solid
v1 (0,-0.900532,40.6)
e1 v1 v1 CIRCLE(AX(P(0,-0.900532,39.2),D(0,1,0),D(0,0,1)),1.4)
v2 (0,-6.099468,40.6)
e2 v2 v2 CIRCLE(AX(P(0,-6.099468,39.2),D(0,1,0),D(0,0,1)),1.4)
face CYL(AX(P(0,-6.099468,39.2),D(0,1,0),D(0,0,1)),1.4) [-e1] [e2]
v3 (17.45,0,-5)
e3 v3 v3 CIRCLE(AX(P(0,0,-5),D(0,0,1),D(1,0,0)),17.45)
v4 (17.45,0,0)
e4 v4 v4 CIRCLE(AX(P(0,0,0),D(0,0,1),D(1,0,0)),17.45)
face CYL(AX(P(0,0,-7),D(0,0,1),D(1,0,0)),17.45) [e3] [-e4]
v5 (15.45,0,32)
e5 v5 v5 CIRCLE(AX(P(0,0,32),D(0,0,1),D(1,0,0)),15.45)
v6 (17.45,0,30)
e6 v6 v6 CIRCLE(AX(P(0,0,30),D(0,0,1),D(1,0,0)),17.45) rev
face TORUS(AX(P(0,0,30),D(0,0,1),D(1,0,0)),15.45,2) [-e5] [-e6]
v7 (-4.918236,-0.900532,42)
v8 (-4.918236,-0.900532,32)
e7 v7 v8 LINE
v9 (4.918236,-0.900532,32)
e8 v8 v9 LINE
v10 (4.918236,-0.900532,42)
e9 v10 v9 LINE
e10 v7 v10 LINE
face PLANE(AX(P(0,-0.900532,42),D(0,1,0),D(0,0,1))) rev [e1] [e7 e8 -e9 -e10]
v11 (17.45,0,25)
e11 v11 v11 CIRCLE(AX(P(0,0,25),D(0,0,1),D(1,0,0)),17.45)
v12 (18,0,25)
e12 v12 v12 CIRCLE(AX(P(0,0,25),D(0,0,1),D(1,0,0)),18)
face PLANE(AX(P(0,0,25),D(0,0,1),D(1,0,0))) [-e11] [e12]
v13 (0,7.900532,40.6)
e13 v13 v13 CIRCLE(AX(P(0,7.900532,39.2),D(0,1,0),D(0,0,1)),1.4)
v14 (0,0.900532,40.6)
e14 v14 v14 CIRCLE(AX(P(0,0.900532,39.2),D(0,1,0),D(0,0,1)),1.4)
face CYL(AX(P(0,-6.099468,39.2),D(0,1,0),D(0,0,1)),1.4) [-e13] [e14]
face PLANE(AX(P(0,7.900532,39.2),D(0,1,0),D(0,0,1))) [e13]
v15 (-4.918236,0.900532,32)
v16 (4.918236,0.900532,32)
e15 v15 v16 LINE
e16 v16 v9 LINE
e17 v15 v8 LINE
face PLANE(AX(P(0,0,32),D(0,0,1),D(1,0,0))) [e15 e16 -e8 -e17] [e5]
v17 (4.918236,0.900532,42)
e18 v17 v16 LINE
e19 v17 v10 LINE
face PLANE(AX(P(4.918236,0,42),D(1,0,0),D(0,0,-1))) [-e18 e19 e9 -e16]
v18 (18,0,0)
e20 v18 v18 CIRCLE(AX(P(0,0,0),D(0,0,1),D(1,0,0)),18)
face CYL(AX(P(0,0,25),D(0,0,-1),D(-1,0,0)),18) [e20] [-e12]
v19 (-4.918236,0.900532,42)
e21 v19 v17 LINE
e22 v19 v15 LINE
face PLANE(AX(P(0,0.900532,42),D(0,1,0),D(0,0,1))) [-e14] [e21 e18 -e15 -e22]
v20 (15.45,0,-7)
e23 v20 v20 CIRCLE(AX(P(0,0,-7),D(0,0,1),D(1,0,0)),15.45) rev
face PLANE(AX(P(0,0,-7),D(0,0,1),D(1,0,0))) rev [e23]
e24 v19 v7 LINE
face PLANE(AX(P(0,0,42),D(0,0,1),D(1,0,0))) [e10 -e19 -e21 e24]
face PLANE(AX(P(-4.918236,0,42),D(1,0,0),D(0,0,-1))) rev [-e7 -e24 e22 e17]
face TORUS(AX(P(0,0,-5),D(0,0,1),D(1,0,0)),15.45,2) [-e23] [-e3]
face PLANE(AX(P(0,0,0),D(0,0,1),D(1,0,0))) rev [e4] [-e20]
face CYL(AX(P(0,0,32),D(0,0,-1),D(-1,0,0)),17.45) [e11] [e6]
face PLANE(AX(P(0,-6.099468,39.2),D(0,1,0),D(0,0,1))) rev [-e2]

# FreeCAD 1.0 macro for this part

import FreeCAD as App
import Part
import Sketcher
from FreeCAD import Vector
Q = App.Units.Quantity


def edges_at(feature, points):
    """Names of the edges that pass closest to the given points."""
    edges = feature.Shape.Edges
    near = lambda p: min(range(len(edges)), key=lambda i: edges[i].distToShape(Part.Vertex(*p))[0])
    return sorted({f"Edge{near(p) + 1}" for p in points})

doc = App.newDocument("Part")
body = doc.addObject("PartDesign::Body", "Body")

# Sketch on XY plane
sketch1 = body.newObject("Sketcher::SketchObject", "Sketch")
sketch1.AttachmentSupport = (doc.getObject("XY_Plane"), [""])
sketch1.MapMode = "FlatFace"
sketch1.addGeometry(Part.Circle(Vector(0, 0, 0), Vector(0, 0, 1), 18), False)
sketch1.addConstraint(Sketcher.Constraint("Coincident", 0, 3, -1, 1))
sketch1.addConstraint(Sketcher.Constraint("Diameter", 0, Q("36 mm")))
pad1 = body.newObject("PartDesign::Pad", "Pad")
pad1.Profile = sketch1
pad1.Length = 25

# Sketch on XY plane
sketch2 = body.newObject("Sketcher::SketchObject", "Sketch001")
sketch2.AttachmentSupport = (doc.getObject("XY_Plane"), [""])
sketch2.MapMode = "FlatFace"
sketch2.AttachmentOffset = App.Placement(Vector(0, 0, 25), App.Rotation())
sketch2.addGeometry(Part.Circle(Vector(0, 0, 0), Vector(0, 0, 1), 17), False)
sketch2.addConstraint(Sketcher.Constraint("Coincident", 0, 3, -1, 1))
sketch2.addConstraint(Sketcher.Constraint("Diameter", 0, Q("34.9 mm")))
pad2 = body.newObject("PartDesign::Pad", "Pad001")
pad2.Profile = sketch2
pad2.Length = 7

# Sketch on XY plane
sketch3 = body.newObject("Sketcher::SketchObject", "Sketch002")
sketch3.AttachmentSupport = (doc.getObject("XY_Plane"), [""])
sketch3.MapMode = "FlatFace"
sketch3.addGeometry(Part.Circle(Vector(0, 0, 0), Vector(0, 0, 1), 17), False)
sketch3.addConstraint(Sketcher.Constraint("Coincident", 0, 3, -1, 1))
sketch3.addConstraint(Sketcher.Constraint("Diameter", 0, Q("34.9 mm")))
pad3 = body.newObject("PartDesign::Pad", "Pad002")
pad3.Profile = sketch3
pad3.Length = 7
pad3.Reversed = True
doc.recompute()

fillet = body.newObject("PartDesign::Fillet", "Fillet")
fillet.Base = (pad3, edges_at(pad3, [(-17.45, 0, 32)]))
fillet.Radius = 2
doc.recompute()

fillet2 = body.newObject("PartDesign::Fillet", "Fillet001")
fillet2.Base = (fillet, edges_at(fillet, [(-17.45, 0, -7)]))
fillet2.Radius = 2

# Sketch on XY plane
sketch4 = body.newObject("Sketcher::SketchObject", "Sketch003")
sketch4.AttachmentSupport = (doc.getObject("XY_Plane"), [""])
sketch4.MapMode = "FlatFace"
sketch4.AttachmentOffset = App.Placement(Vector(0, 0, 32), App.Rotation())
sketch4.addGeometry(Part.LineSegment(Vector(-4.9, 0.9, 0), Vector(-4.9, -0.9, 0)), False)
sketch4.addGeometry(Part.LineSegment(Vector(-4.9, -0.9, 0), Vector(4.9, -0.9, 0)), False)
sketch4.addGeometry(Part.LineSegment(Vector(4.9, -0.9, 0), Vector(4.9, 0.9, 0)), False)
sketch4.addGeometry(Part.LineSegment(Vector(4.9, 0.9, 0), Vector(-4.9, 0.9, 0)), False)
sketch4.addConstraint(Sketcher.Constraint("Coincident", 0, 2, 1, 1))
sketch4.addConstraint(Sketcher.Constraint("Coincident", 1, 2, 2, 1))
sketch4.addConstraint(Sketcher.Constraint("Coincident", 2, 2, 3, 1))
sketch4.addConstraint(Sketcher.Constraint("Coincident", 3, 2, 0, 1))
sketch4.addConstraint(Sketcher.Constraint("Vertical", 0))
sketch4.addConstraint(Sketcher.Constraint("Horizontal", 1))
sketch4.addConstraint(Sketcher.Constraint("Vertical", 2))
sketch4.addConstraint(Sketcher.Constraint("Horizontal", 3))
sketch4.addConstraint(Sketcher.Constraint("Symmetric", 0, 2, 2, 2, -1, 1))
sketch4.addConstraint(Sketcher.Constraint("DistanceX", 1, 1, 1, 2, Q("9.836472 mm")))
sketch4.addConstraint(Sketcher.Constraint("DistanceY", 0, 2, 0, 1, Q("1.801063 mm")))
pad4 = body.newObject("PartDesign::Pad", "Pad003")
pad4.Profile = sketch4
pad4.Length = 10

# Sketch on XZ plane
sketch5 = body.newObject("Sketcher::SketchObject", "Sketch004")
sketch5.AttachmentSupport = (doc.getObject("XZ_Plane"), [""])
sketch5.MapMode = "FlatFace"
sketch5.AttachmentOffset = App.Placement(Vector(0, 0, -0.900532), App.Rotation())
sketch5.addGeometry(Part.Circle(Vector(0, 39.2, 0), Vector(0, 0, 1), 1.4), False)
sketch5.addConstraint(Sketcher.Constraint("PointOnObject", 0, 3, -2))
sketch5.addConstraint(Sketcher.Constraint("Diameter", 0, Q("2.8 mm")))
sketch5.addConstraint(Sketcher.Constraint("DistanceY", -1, 1, 0, 3, Q("39.2 mm")))
pad5 = body.newObject("PartDesign::Pad", "Pad004")
pad5.Profile = sketch5
pad5.Type = "TwoLengths"
pad5.Length = 7
pad5.Length2 = 7
pad5.Reversed = True

doc.recompute()
